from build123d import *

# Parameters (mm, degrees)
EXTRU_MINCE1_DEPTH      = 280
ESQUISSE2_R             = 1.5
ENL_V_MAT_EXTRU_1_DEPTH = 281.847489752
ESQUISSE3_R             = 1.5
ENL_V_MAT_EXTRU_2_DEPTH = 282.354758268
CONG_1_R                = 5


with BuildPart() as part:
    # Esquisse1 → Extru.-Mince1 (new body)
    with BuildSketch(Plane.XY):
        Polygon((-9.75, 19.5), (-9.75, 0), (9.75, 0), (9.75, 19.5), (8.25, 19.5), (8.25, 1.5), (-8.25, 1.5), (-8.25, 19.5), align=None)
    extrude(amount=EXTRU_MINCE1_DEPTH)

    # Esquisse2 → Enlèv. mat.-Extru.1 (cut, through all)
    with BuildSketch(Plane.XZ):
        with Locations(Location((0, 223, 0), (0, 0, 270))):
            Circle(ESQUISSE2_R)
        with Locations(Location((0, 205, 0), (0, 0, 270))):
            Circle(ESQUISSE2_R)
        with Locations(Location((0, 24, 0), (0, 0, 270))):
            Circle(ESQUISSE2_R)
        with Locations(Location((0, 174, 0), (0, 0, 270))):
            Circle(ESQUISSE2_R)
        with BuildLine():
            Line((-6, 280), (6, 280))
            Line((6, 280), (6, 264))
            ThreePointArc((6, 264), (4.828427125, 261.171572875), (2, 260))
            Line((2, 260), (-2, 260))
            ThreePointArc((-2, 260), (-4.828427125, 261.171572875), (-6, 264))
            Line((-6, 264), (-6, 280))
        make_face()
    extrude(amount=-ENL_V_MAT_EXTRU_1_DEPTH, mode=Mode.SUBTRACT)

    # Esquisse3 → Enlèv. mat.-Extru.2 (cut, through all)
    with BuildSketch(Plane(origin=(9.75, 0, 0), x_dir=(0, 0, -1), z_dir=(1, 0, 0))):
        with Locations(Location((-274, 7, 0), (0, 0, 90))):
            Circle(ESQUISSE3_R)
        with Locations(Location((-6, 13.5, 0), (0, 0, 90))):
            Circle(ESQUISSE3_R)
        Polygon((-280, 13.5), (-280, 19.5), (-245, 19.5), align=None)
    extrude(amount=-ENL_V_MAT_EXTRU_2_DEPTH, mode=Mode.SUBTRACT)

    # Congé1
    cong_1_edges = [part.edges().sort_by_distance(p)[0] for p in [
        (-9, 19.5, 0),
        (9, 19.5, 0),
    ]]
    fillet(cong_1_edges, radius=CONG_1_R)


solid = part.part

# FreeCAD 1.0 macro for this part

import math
import FreeCAD as App
import Part
import Sketcher
from FreeCAD import Vector
Q = App.Units.Quantity


def edges_at(feature, points):
    """Names of the edges that pass closest to the given points."""
    edges = feature.Shape.Edges
    near = lambda p: min(range(len(edges)), key=lambda i: edges[i].distToShape(Part.Vertex(*p))[0])
    return sorted({f"Edge{near(p) + 1}" for p in points})

doc = App.newDocument("Part")
params = doc.addObject("Spreadsheet::Sheet", "Params")
for row, (alias, value) in enumerate([
    ("sketch1_height", "18 mm"),
    ("sketch1_width", "19.5 mm"),
    ("sketch1_width2", "1.5 mm"),
    ("pad1_length", "280 mm"),
    ("sketch2_diameter", "3 mm"),
    ("sketch2_radius", "4 mm"),
    ("sketch2_width", "12 mm"),
    ("sketch2_height", "16 mm"),
    ("sketch3_diameter", "3 mm"),
    ("sketch3_width", "6 mm"),
    ("sketch3_height", "35 mm"),
    ("fillet_radius", "5 mm"),
], start=1):
    params.set(f"A{row}", alias)
    params.set(f"B{row}", "=" + value)
    params.setAlias(f"B{row}", alias)

body = doc.addObject("PartDesign::Body", "Body")

sketch1 = body.newObject("Sketcher::SketchObject", "Sketch")
sketch1.AttachmentSupport = (doc.getObject("XY_Plane"), [""])
sketch1.MapMode = "FlatFace"
sketch1.addGeometry(Part.LineSegment(Vector(-9.75, 19.5, 0), Vector(-9.75, 0, 0)), False)
sketch1.addGeometry(Part.LineSegment(Vector(-9.75, 0, 0), Vector(9.75, 0, 0)), False)
sketch1.addGeometry(Part.LineSegment(Vector(9.75, 0, 0), Vector(9.75, 19.5, 0)), False)
sketch1.addGeometry(Part.LineSegment(Vector(9.75, 19.5, 0), Vector(8.25, 19.5, 0)), False)
sketch1.addGeometry(Part.LineSegment(Vector(8.25, 19.5, 0), Vector(8.25, 1.5, 0)), False)
sketch1.addGeometry(Part.LineSegment(Vector(8.25, 1.5, 0), Vector(-8.25, 1.5, 0)), False)
sketch1.addGeometry(Part.LineSegment(Vector(-8.25, 1.5, 0), Vector(-8.25, 19.5, 0)), False)
sketch1.addGeometry(Part.LineSegment(Vector(-8.25, 19.5, 0), Vector(-9.75, 19.5, 0)), False)
sketch1.addConstraint(Sketcher.Constraint("Coincident", 0, 2, 1, 1))
sketch1.addConstraint(Sketcher.Constraint("Coincident", 1, 2, 2, 1))
sketch1.addConstraint(Sketcher.Constraint("Coincident", 2, 2, 3, 1))
sketch1.addConstraint(Sketcher.Constraint("Coincident", 3, 2, 4, 1))
sketch1.addConstraint(Sketcher.Constraint("Coincident", 4, 2, 5, 1))
sketch1.addConstraint(Sketcher.Constraint("Coincident", 5, 2, 6, 1))
sketch1.addConstraint(Sketcher.Constraint("Coincident", 6, 2, 7, 1))
sketch1.addConstraint(Sketcher.Constraint("Coincident", 7, 2, 0, 1))
sketch1.addConstraint(Sketcher.Constraint("Vertical", 0))
sketch1.addConstraint(Sketcher.Constraint("Horizontal", 1))
sketch1.addConstraint(Sketcher.Constraint("Vertical", 2))
sketch1.addConstraint(Sketcher.Constraint("Horizontal", 3))
sketch1.addConstraint(Sketcher.Constraint("Vertical", 4))
sketch1.addConstraint(Sketcher.Constraint("Horizontal", 5))
sketch1.addConstraint(Sketcher.Constraint("Vertical", 6))
sketch1.addConstraint(Sketcher.Constraint("Horizontal", 7))
sketch1.addConstraint(Sketcher.Constraint("Symmetric", 0, 2, 1, 2, -1, 1))
sketch1.addConstraint(Sketcher.Constraint("Symmetric", 3, 2, 6, 2, -2))
sketch1.addConstraint(Sketcher.Constraint("Equal", 1, 0))
sketch1.addConstraint(Sketcher.Constraint("DistanceY", 4, 2, 4, 1, Q("18 mm")))
sketch1.addConstraint(Sketcher.Constraint("DistanceX", 1, 1, 1, 2, Q("19.5 mm")))
sketch1.addConstraint(Sketcher.Constraint("DistanceX", 3, 2, 3, 1, Q("1.5 mm")))
sketch1.setExpression("Constraints[19]", "Params.sketch1_height")
sketch1.setExpression("Constraints[20]", "Params.sketch1_width")
sketch1.setExpression("Constraints[21]", "Params.sketch1_width2")
pad1 = body.newObject("PartDesign::Pad", "Pad")
pad1.Profile = sketch1
pad1.setExpression("Length", "Params.pad1_length")

sketch2 = body.newObject("Sketcher::SketchObject", "Sketch001")
sketch2.AttachmentSupport = (doc.getObject("XZ_Plane"), [""])
sketch2.MapMode = "FlatFace"
sketch2.addGeometry(Part.Circle(Vector(0, 223, 0), Vector(0, 0, 1), 1.5), False)
sketch2.addGeometry(Part.Circle(Vector(0, 205, 0), Vector(0, 0, 1), 1.5), False)
sketch2.addGeometry(Part.Circle(Vector(0, 24, 0), Vector(0, 0, 1), 1.5), False)
sketch2.addGeometry(Part.Circle(Vector(0, 174, 0), Vector(0, 0, 1), 1.5), False)
sketch2.addGeometry(Part.LineSegment(Vector(6, 280, 0), Vector(-6, 280, 0)), False)
sketch2.addGeometry(Part.LineSegment(Vector(-6, 280, 0), Vector(-6, 264, 0)), False)
sketch2.addGeometry(Part.ArcOfCircle(Part.Circle(Vector(-2, 264, 0), Vector(0, 0, 1), 4), math.radians(180), math.radians(270)), False)
sketch2.addGeometry(Part.LineSegment(Vector(-2, 260, 0), Vector(2, 260, 0)), False)
sketch2.addGeometry(Part.ArcOfCircle(Part.Circle(Vector(2, 264, 0), Vector(0, 0, 1), 4), math.radians(-90), math.radians(0)), False)
sketch2.addGeometry(Part.LineSegment(Vector(6, 264, 0), Vector(6, 280, 0)), False)
sketch2.addConstraint(Sketcher.Constraint("Coincident", 4, 2, 5, 1))
sketch2.addConstraint(Sketcher.Constraint("Tangent", 5, 2, 6, 1))
sketch2.addConstraint(Sketcher.Constraint("Tangent", 6, 2, 7, 1))
sketch2.addConstraint(Sketcher.Constraint("Tangent", 7, 2, 8, 1))
sketch2.addConstraint(Sketcher.Constraint("Tangent", 8, 2, 9, 1))
sketch2.addConstraint(Sketcher.Constraint("Coincident", 9, 2, 4, 1))
sketch2.addConstraint(Sketcher.Constraint("Horizontal", 4))
sketch2.addConstraint(Sketcher.Constraint("Vertical", 5))
sketch2.addConstraint(Sketcher.Constraint("Horizontal", 7))
sketch2.addConstraint(Sketcher.Constraint("Vertical", 9))
sketch2.addConstraint(Sketcher.Constraint("Equal", 0, 1))
sketch2.addConstraint(Sketcher.Constraint("Equal", 1, 2))
sketch2.addConstraint(Sketcher.Constraint("Equal", 2, 3))
sketch2.addConstraint(Sketcher.Constraint("Equal", 6, 8))
sketch2.addConstraint(Sketcher.Constraint("PointOnObject", 0, 3, -2))
sketch2.addConstraint(Sketcher.Constraint("PointOnObject", 1, 3, -2))
sketch2.addConstraint(Sketcher.Constraint("PointOnObject", 2, 3, -2))
sketch2.addConstraint(Sketcher.Constraint("PointOnObject", 3, 3, -2))
sketch2.addConstraint(Sketcher.Constraint("Diameter", 0, Q("3 mm")))
sketch2.addConstraint(Sketcher.Constraint("Radius", 6, Q("4 mm")))
sketch2.addConstraint(Sketcher.Constraint("DistanceX", 4, 2, 4, 1, Q("12 mm")))
sketch2.addConstraint(Sketcher.Constraint("DistanceY", 5, 2, 5, 1, Q("16 mm")))
sketch2.addConstraint(Sketcher.Constraint("DistanceY", -1, 1, 0, 3, Q("223 mm")))
sketch2.addConstraint(Sketcher.Constraint("DistanceY", -1, 1, 1, 3, Q("205 mm")))
sketch2.addConstraint(Sketcher.Constraint("DistanceY", -1, 1, 2, 3, Q("24 mm")))
sketch2.addConstraint(Sketcher.Constraint("DistanceY", -1, 1, 3, 3, Q("174 mm")))
sketch2.addConstraint(Sketcher.Constraint("DistanceX", 6, 3, -1, 1, Q("2 mm")))
sketch2.addConstraint(Sketcher.Constraint("DistanceY", -1, 1, 6, 3, Q("264 mm")))
sketch2.setExpression("Constraints[18]", "Params.sketch2_diameter")
sketch2.setExpression("Constraints[19]", "Params.sketch2_radius")
sketch2.setExpression("Constraints[20]", "Params.sketch2_width")
sketch2.setExpression("Constraints[21]", "Params.sketch2_height")
pocket1 = body.newObject("PartDesign::Pocket", "Pocket")
pocket1.Profile = sketch2
pocket1.Type = "ThroughAll"

sketch3 = body.newObject("Sketcher::SketchObject", "Sketch002")
sketch3.AttachmentSupport = (doc.getObject("YZ_Plane"), [""])
sketch3.MapMode = "FlatFace"
sketch3.AttachmentOffset = App.Placement(Vector(0, 0, 9.75), App.Rotation())
sketch3.addGeometry(Part.Circle(Vector(7, 274, 0), Vector(0, 0, 1), 1.5), False)
sketch3.addGeometry(Part.Circle(Vector(13.5, 6, 0), Vector(0, 0, 1), 1.5), False)
sketch3.addGeometry(Part.LineSegment(Vector(19.5, 280, 0), Vector(13.5, 280, 0)), False)
sketch3.addGeometry(Part.LineSegment(Vector(13.5, 280, 0), Vector(19.5, 245, 0)), False)
sketch3.addGeometry(Part.LineSegment(Vector(19.5, 245, 0), Vector(19.5, 280, 0)), False)
sketch3.addConstraint(Sketcher.Constraint("Coincident", 2, 2, 3, 1))
sketch3.addConstraint(Sketcher.Constraint("Coincident", 3, 2, 4, 1))
sketch3.addConstraint(Sketcher.Constraint("Coincident", 4, 2, 2, 1))
sketch3.addConstraint(Sketcher.Constraint("Horizontal", 2))
sketch3.addConstraint(Sketcher.Constraint("Vertical", 4))
sketch3.addConstraint(Sketcher.Constraint("Equal", 0, 1))
sketch3.addConstraint(Sketcher.Constraint("Vertical", 1, 3, 2, 2))
sketch3.addConstraint(Sketcher.Constraint("Diameter", 0, Q("3 mm")))
sketch3.addConstraint(Sketcher.Constraint("DistanceX", 2, 2, 2, 1, Q("6 mm")))
sketch3.addConstraint(Sketcher.Constraint("DistanceY", 4, 1, 4, 2, Q("35 mm")))
sketch3.addConstraint(Sketcher.Constraint("DistanceX", -1, 1, 0, 3, Q("7 mm")))
sketch3.addConstraint(Sketcher.Constraint("DistanceY", -1, 1, 0, 3, Q("274 mm")))
sketch3.addConstraint(Sketcher.Constraint("DistanceY", -1, 1, 1, 3, Q("6 mm")))
sketch3.addConstraint(Sketcher.Constraint("DistanceY", -1, 1, 2, 2, Q("280 mm")))
sketch3.addConstraint(Sketcher.Constraint("DistanceX", -1, 1, 1, 3, Q("13.5 mm")))
sketch3.setExpression("Constraints[7]", "Params.sketch3_diameter")
sketch3.setExpression("Constraints[8]", "Params.sketch3_width")
sketch3.setExpression("Constraints[9]", "Params.sketch3_height")
pocket2 = body.newObject("PartDesign::Pocket", "Pocket001")
pocket2.Profile = sketch3
pocket2.Type = "ThroughAll"
doc.recompute()

fillet = body.newObject("PartDesign::Fillet", "Fillet")
fillet.Base = (pocket2, edges_at(pocket2, [(-9, 19.5, 0), (9, 19.5, 0)]))
fillet.setExpression("Radius", "Params.fillet_radius")

doc.recompute()
